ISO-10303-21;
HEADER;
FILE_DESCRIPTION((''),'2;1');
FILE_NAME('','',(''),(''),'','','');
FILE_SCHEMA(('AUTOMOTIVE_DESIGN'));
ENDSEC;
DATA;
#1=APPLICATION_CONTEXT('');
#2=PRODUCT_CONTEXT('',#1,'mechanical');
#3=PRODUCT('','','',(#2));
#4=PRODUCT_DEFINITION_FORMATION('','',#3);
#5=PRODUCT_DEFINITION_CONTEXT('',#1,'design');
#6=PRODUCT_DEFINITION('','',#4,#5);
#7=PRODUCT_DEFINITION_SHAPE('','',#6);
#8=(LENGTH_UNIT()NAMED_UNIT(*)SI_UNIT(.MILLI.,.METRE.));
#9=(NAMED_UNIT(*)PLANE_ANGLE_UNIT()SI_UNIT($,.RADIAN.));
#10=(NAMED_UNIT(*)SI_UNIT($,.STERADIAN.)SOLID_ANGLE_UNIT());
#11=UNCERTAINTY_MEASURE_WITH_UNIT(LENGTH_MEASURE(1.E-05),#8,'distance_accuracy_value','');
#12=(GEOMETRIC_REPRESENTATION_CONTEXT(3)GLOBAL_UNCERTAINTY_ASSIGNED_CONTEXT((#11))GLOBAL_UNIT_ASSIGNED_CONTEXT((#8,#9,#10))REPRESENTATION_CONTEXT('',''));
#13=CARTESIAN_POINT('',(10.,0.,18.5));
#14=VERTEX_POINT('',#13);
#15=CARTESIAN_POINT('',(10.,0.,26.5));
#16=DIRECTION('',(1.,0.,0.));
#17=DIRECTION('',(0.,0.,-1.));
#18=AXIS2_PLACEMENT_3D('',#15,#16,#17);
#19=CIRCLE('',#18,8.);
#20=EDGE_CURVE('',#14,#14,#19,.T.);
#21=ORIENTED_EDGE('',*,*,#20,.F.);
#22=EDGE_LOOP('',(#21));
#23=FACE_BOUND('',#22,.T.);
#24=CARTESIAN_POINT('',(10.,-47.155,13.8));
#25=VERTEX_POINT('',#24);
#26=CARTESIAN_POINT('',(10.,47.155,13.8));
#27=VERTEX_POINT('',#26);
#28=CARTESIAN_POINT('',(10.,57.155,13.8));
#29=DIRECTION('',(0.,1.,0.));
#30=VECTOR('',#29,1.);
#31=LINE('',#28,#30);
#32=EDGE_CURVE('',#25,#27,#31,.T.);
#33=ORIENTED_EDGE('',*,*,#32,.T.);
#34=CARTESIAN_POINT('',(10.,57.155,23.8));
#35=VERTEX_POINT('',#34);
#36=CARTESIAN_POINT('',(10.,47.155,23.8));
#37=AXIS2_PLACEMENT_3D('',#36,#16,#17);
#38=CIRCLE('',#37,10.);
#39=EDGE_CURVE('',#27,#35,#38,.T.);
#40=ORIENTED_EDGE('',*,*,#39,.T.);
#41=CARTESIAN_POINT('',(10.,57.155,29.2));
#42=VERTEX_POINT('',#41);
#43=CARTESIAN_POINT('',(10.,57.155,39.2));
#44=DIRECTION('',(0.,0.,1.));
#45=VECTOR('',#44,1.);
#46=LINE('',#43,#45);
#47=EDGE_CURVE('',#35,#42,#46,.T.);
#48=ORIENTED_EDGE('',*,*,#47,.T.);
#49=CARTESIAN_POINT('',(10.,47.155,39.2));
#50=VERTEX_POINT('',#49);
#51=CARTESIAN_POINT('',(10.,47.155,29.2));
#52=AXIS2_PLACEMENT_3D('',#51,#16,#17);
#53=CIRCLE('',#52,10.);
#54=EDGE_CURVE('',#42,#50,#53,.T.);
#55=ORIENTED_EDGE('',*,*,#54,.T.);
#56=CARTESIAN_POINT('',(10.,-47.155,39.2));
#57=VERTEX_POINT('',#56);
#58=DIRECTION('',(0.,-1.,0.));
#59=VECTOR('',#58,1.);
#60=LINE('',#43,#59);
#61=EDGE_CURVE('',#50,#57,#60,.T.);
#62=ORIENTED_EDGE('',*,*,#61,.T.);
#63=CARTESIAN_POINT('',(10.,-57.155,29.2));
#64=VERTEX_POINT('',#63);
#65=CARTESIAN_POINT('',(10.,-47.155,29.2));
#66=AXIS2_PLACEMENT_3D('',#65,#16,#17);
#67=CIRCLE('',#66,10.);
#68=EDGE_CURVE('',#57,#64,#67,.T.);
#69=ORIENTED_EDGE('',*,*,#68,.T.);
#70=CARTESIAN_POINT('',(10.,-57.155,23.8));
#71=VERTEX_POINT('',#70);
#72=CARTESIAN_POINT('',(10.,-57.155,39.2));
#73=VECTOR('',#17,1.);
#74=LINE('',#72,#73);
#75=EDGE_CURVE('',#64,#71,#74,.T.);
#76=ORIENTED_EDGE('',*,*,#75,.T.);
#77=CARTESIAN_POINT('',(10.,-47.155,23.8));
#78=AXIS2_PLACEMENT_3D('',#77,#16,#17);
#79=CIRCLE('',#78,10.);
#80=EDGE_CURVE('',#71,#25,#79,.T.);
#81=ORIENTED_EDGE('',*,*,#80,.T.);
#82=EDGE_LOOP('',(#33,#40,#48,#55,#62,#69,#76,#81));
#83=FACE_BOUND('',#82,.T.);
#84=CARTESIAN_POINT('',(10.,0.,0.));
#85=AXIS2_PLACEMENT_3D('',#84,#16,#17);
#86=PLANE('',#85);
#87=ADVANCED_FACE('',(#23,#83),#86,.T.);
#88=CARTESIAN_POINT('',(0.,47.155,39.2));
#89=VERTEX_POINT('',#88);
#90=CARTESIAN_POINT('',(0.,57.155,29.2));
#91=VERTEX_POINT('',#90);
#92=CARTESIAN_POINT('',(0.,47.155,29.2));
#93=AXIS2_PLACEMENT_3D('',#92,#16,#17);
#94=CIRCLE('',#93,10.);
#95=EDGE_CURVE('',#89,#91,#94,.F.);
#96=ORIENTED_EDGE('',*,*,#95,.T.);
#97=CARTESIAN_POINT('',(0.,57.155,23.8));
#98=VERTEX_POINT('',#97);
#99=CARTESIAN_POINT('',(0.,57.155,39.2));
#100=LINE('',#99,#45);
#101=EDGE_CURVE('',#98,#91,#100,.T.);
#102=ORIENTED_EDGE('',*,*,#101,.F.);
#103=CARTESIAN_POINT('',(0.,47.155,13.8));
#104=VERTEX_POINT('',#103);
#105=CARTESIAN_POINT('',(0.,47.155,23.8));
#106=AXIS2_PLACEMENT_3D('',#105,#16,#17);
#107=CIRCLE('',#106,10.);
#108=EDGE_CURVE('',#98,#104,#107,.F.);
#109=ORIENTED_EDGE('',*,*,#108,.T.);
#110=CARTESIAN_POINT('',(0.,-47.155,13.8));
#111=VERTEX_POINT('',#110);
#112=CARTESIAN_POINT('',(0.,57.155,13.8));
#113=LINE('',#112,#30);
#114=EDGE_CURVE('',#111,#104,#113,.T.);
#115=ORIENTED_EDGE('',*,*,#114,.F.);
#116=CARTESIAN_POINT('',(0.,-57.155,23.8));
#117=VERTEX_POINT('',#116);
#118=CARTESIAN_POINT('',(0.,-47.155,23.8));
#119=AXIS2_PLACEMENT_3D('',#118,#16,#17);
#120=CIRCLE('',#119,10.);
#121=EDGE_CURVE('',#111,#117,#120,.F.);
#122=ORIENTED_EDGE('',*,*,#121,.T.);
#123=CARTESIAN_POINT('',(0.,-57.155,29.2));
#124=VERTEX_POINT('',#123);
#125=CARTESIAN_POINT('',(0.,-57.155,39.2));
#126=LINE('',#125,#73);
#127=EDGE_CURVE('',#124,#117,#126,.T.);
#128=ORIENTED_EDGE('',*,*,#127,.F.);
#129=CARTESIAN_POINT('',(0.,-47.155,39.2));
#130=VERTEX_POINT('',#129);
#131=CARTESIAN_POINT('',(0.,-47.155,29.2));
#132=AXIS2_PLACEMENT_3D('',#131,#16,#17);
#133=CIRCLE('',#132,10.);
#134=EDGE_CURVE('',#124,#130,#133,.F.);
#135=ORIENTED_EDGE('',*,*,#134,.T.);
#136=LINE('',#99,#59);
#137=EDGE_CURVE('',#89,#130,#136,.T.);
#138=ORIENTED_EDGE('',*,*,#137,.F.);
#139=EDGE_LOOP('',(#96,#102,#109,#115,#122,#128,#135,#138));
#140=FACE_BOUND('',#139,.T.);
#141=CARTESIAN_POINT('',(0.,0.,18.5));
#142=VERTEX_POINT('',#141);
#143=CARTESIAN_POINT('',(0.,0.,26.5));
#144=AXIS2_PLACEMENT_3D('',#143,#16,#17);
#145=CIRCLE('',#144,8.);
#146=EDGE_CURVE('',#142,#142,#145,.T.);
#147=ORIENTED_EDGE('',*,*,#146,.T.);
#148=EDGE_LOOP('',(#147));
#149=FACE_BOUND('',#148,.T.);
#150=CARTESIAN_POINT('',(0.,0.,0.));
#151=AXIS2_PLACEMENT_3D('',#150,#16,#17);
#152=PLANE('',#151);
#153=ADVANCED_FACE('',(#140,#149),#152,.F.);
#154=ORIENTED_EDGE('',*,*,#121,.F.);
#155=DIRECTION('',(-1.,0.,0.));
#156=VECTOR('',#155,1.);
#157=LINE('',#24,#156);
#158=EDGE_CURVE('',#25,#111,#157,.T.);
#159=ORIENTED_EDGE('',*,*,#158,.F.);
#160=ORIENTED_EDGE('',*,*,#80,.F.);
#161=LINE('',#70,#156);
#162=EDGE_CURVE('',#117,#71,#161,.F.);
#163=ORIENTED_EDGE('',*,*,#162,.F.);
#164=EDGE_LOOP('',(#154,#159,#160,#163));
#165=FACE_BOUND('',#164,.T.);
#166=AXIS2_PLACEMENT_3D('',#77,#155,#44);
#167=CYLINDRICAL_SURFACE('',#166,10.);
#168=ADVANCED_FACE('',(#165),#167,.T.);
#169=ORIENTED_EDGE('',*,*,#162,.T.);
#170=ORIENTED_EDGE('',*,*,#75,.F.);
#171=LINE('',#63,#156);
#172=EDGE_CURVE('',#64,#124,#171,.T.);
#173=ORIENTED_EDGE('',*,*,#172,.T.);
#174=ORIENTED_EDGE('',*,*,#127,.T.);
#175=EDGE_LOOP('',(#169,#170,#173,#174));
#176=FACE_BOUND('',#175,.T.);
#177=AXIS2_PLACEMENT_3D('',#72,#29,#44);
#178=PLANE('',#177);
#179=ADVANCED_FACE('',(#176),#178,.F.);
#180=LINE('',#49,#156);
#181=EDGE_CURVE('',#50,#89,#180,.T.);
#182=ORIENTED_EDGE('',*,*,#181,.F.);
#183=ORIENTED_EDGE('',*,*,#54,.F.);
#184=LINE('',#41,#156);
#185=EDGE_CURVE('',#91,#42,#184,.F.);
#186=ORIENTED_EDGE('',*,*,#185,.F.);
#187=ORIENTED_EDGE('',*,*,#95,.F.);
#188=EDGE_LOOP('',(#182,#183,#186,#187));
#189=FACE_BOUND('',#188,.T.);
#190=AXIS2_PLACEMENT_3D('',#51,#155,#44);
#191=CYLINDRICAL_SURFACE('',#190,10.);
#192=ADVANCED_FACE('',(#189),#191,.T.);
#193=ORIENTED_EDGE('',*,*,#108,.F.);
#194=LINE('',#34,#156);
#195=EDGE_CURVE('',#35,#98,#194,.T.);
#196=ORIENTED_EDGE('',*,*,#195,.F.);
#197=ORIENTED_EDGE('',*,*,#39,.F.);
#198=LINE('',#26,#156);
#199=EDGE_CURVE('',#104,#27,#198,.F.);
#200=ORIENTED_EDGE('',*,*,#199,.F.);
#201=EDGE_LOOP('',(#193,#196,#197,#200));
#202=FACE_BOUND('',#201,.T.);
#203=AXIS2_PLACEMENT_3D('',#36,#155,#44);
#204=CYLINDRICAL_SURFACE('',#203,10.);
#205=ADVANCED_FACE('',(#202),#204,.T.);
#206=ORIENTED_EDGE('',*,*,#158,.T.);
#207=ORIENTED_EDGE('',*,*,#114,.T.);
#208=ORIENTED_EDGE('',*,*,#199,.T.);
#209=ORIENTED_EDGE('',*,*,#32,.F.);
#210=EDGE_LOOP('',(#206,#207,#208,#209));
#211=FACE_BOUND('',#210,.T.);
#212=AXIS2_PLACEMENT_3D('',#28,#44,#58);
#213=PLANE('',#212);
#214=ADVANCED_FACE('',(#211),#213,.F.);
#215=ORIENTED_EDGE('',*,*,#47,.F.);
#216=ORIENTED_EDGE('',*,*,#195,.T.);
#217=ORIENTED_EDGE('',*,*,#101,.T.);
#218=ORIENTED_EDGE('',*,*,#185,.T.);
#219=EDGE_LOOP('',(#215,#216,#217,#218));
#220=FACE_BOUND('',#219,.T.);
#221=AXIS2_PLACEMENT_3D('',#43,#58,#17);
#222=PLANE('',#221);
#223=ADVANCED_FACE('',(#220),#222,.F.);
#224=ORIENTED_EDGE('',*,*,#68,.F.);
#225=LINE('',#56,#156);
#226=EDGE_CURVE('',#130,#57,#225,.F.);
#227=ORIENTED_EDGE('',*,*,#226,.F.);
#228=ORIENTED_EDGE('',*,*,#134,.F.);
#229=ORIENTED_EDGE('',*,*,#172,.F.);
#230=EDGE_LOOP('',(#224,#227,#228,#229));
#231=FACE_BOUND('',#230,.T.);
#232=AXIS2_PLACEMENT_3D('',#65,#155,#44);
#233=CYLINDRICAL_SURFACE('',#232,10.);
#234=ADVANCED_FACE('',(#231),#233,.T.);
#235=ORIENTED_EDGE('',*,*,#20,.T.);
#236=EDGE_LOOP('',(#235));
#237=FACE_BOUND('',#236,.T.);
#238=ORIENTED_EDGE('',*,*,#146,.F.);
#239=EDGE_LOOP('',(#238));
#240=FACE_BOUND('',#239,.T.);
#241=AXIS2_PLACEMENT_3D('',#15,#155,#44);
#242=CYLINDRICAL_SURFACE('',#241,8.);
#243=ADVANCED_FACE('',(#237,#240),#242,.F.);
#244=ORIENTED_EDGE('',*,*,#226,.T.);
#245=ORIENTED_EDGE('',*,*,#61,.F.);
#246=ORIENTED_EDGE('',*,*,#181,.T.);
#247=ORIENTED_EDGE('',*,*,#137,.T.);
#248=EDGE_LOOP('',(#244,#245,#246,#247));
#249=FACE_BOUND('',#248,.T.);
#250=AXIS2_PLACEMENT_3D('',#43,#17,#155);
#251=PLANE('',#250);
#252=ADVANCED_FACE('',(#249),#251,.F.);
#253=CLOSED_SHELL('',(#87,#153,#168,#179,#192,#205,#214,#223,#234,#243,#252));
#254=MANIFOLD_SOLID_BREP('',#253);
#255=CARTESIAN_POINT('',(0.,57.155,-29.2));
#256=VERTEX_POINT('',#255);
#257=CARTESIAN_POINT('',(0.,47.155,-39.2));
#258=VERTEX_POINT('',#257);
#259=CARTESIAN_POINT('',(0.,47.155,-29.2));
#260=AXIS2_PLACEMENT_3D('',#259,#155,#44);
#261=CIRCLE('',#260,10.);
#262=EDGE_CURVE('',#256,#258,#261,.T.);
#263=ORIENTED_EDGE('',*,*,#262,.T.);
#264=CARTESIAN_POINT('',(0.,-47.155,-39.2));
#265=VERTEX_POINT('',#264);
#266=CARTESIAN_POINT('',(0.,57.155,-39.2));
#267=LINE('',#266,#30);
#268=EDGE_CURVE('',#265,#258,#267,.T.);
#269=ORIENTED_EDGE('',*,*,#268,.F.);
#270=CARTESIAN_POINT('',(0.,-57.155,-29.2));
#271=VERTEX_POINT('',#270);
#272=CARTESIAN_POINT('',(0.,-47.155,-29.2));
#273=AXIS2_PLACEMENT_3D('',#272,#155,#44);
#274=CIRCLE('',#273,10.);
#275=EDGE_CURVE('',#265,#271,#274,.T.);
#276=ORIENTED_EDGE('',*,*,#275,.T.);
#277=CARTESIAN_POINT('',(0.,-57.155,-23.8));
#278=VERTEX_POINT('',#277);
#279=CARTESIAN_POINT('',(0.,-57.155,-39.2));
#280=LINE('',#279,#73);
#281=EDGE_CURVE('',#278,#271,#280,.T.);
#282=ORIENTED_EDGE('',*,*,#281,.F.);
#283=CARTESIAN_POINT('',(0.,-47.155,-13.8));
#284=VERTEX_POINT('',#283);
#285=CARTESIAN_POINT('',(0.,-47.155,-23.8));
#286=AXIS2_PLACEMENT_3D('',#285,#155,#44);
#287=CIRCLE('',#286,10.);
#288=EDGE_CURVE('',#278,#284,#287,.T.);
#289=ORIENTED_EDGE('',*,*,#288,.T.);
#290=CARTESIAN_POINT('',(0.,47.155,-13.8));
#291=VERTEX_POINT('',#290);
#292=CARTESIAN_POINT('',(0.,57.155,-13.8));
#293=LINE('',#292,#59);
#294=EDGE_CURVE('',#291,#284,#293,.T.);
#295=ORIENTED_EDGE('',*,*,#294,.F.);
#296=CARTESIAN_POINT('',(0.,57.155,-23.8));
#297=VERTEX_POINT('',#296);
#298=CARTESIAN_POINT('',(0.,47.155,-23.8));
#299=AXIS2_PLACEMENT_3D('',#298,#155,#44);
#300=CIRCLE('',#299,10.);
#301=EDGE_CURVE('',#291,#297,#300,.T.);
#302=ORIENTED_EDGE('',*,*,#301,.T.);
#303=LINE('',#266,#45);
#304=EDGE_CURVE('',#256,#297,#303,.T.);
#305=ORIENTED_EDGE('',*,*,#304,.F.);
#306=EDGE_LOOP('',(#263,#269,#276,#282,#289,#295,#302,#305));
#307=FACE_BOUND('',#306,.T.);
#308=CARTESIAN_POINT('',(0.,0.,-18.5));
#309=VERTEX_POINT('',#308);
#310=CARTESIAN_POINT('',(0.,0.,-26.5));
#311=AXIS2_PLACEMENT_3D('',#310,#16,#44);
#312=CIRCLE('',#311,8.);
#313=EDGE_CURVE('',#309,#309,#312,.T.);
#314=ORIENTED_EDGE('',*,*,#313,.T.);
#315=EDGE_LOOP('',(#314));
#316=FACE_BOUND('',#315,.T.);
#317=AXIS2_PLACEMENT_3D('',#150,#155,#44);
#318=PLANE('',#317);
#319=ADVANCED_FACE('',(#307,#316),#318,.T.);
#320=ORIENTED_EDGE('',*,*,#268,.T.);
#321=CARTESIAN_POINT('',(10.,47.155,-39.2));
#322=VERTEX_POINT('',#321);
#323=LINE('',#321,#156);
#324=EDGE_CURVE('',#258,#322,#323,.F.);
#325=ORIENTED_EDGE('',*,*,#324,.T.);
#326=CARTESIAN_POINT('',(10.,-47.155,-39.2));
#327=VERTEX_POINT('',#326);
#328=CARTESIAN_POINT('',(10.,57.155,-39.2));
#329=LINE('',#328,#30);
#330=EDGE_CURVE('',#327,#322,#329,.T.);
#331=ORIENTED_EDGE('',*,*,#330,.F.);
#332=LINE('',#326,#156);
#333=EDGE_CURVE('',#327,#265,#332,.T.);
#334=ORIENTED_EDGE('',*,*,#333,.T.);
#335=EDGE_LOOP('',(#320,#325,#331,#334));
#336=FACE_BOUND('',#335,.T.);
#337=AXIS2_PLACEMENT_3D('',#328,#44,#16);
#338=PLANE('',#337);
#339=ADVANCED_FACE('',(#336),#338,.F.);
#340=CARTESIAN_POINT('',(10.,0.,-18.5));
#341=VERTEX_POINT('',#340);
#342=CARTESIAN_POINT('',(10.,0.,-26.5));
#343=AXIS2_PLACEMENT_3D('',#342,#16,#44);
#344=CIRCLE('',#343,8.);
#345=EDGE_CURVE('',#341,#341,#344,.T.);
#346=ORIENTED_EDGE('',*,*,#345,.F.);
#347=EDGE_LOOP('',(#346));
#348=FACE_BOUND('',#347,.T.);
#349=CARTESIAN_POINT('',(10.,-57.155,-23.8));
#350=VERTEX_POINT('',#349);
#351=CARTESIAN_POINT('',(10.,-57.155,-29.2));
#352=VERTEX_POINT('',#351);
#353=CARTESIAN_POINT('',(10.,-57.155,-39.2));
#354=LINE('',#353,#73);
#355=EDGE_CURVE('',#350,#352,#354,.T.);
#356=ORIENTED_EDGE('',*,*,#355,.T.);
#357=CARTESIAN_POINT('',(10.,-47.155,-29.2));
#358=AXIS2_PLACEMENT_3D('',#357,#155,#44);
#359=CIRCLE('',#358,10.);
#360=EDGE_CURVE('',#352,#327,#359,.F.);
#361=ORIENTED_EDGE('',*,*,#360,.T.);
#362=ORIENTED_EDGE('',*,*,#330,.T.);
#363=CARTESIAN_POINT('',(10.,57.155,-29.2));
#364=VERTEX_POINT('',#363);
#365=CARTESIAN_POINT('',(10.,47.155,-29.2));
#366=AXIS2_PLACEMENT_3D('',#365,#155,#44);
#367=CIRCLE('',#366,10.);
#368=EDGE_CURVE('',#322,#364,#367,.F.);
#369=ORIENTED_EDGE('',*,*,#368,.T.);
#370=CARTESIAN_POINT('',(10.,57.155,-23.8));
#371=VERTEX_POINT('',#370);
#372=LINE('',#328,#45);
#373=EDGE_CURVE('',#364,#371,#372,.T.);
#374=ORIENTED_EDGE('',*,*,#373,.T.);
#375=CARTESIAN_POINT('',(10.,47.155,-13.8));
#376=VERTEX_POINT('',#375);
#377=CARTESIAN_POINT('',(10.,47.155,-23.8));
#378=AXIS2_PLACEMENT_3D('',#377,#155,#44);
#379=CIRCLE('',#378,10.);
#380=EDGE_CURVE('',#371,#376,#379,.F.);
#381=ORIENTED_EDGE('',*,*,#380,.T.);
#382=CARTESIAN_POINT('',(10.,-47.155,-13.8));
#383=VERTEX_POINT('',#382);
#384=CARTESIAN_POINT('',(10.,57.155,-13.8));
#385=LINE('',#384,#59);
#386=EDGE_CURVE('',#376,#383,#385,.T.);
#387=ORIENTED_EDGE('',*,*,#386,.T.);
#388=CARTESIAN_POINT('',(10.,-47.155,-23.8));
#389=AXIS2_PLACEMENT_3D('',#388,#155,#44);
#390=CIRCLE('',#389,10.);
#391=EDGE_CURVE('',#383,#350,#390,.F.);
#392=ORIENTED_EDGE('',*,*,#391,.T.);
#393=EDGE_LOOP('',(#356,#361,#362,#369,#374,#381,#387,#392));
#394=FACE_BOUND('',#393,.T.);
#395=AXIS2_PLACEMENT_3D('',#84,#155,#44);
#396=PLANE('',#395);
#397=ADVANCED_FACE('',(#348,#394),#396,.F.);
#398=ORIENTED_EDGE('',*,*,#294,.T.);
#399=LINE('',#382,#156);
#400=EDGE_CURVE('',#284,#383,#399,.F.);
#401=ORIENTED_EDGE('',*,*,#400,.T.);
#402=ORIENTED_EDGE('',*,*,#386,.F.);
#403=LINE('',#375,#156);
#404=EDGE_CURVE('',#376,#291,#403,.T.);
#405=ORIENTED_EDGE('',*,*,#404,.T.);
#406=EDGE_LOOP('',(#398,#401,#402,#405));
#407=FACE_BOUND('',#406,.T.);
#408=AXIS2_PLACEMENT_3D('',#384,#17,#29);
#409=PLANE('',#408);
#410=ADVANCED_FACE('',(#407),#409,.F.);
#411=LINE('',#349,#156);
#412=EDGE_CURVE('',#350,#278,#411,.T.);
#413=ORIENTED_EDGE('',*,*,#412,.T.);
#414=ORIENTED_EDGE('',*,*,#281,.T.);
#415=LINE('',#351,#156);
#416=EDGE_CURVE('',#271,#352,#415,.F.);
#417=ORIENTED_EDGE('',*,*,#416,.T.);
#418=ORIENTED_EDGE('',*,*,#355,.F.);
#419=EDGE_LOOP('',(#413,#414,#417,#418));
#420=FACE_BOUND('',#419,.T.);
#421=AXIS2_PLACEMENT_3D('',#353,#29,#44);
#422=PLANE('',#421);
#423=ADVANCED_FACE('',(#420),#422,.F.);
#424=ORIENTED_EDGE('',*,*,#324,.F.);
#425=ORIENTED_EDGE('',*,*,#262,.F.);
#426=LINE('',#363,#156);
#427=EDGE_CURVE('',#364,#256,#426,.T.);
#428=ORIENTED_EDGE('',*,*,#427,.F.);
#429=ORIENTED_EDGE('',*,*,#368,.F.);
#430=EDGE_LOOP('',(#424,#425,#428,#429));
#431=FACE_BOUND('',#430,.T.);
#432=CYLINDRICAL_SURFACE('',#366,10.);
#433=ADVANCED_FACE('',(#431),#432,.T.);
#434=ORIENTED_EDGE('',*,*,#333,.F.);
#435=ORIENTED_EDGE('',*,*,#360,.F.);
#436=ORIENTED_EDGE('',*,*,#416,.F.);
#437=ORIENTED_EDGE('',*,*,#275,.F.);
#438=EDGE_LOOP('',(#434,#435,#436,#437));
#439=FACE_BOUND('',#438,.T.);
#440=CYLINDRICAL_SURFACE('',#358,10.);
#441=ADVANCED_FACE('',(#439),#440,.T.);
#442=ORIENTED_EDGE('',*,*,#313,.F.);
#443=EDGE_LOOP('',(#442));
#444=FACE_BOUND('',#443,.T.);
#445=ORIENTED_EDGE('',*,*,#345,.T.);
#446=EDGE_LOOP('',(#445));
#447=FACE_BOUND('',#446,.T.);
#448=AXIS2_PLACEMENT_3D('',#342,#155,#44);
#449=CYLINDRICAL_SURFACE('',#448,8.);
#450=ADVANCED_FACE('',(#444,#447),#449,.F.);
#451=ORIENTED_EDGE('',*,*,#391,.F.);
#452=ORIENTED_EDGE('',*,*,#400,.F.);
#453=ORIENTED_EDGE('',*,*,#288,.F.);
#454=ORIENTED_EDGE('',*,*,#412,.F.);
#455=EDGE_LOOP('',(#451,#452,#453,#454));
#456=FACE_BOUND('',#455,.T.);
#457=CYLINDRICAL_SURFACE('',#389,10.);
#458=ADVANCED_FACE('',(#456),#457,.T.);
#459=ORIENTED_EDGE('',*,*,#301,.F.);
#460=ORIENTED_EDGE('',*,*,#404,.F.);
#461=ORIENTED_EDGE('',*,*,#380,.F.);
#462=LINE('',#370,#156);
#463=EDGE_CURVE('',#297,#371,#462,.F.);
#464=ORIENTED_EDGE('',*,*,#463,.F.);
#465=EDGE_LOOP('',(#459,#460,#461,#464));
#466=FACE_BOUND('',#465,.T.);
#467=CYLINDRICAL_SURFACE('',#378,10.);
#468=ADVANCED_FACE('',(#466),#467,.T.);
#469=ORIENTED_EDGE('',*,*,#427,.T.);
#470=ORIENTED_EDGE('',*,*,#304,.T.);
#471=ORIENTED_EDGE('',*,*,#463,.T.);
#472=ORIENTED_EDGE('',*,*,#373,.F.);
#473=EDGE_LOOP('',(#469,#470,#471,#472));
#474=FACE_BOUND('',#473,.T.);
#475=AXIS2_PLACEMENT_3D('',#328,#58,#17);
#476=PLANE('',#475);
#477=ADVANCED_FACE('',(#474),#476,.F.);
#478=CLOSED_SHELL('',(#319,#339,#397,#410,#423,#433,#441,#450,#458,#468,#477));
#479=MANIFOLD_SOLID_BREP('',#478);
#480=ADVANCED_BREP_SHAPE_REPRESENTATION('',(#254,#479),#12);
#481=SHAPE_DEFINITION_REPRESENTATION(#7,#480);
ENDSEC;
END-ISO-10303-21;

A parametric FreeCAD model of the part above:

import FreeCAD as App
import Part
import Sketcher

V = App.Vector
Q = App.Units.Quantity


def edges_at(feature, points):
    """Names of the edges that pass closest to the given points."""
    edges = feature.Shape.Edges
    near = lambda p: min(range(len(edges)), key=lambda i: edges[i].distToShape(Part.Vertex(*p))[0])
    return sorted({f"Edge{near(p) + 1}" for p in points})

doc = App.newDocument("Part")
body = doc.addObject("PartDesign::Body", "Body")

# Sketch on YZ plane
sketch1 = body.newObject("Sketcher::SketchObject", "Sketch")
sketch1.AttachmentSupport = (doc.getObject("YZ_Plane"), [""])
sketch1.MapMode = "FlatFace"
sketch1.addGeometry([
    Part.LineSegment(V(57.155, 39.2, 0), V(-57.155, 39.2, 0)),  # 0
    Part.LineSegment(V(-57.155, 39.2, 0), V(-57.155, 13.8, 0)),  # 1
    Part.LineSegment(V(-57.155, 13.8, 0), V(57.155, 13.8, 0)),  # 2
    Part.LineSegment(V(57.155, 13.8, 0), V(57.155, 39.2, 0)),  # 3
    Part.Circle(V(0, 26.5, 0), V(0, 0, 1), 8),  # 4
], False)
sketch1.addConstraint([
    Sketcher.Constraint("Coincident", 0, 2, 1, 1),
    Sketcher.Constraint("Coincident", 1, 2, 2, 1),
    Sketcher.Constraint("Coincident", 2, 2, 3, 1),
    Sketcher.Constraint("Coincident", 3, 2, 0, 1),
    Sketcher.Constraint("Horizontal", 0),
    Sketcher.Constraint("Vertical", 1),
    Sketcher.Constraint("Horizontal", 2),
    Sketcher.Constraint("Vertical", 3),
    Sketcher.Constraint("PointOnObject", 4, 3, -2),
    Sketcher.Constraint("Diameter", 4, Q("16 mm")),
    Sketcher.Constraint("DistanceY", 1, 2, 1, 1, Q("25.4 mm")),
    Sketcher.Constraint("DistanceX", 0, 2, 0, 1, Q("114.31 mm")),
    Sketcher.Constraint("DistanceY", -1, 1, 4, 3, Q("26.5 mm")),
    Sketcher.Constraint("DistanceY", -1, 1, 0, 2, Q("39.2 mm")),
    Sketcher.Constraint("DistanceX", 0, 2, -1, 1, Q("57.155 mm")),
])
pad1 = body.newObject("PartDesign::Pad", "Pad")
pad1.Profile = sketch1
pad1.Length = 10
doc.recompute()

fillet = body.newObject("PartDesign::Fillet", "Fillet")
fillet.Base = (pad1, edges_at(pad1, [
    (5, -57.155, 13.8),
    (5, -57.155, 39.2),
    (5, 57.155, 39.2),
    (5, 57.155, 13.8),
]))
fillet.Radius = 10
body2 = doc.addObject("PartDesign::Body", "Body001")

# Sketch on YZ plane
sketch2 = body2.newObject("Sketcher::SketchObject", "Sketch001")
sketch2.AttachmentSupport = (doc.getObject("YZ_Plane001"), [""])
sketch2.MapMode = "FlatFace"
sketch2.addGeometry([
    Part.LineSegment(V(57.155, -13.8, 0), V(-57.155, -13.8, 0)),  # 0
    Part.LineSegment(V(-57.155, -13.8, 0), V(-57.155, -39.2, 0)),  # 1
    Part.LineSegment(V(-57.155, -39.2, 0), V(57.155, -39.2, 0)),  # 2
    Part.LineSegment(V(57.155, -39.2, 0), V(57.155, -13.8, 0)),  # 3
    Part.Circle(V(0, -26.5, 0), V(0, 0, 1), 8),  # 4
], False)
sketch2.addConstraint([
    Sketcher.Constraint("Coincident", 0, 2, 1, 1),
    Sketcher.Constraint("Coincident", 1, 2, 2, 1),
    Sketcher.Constraint("Coincident", 2, 2, 3, 1),
    Sketcher.Constraint("Coincident", 3, 2, 0, 1),
    Sketcher.Constraint("Horizontal", 0),
    Sketcher.Constraint("Vertical", 1),
    Sketcher.Constraint("Horizontal", 2),
    Sketcher.Constraint("Vertical", 3),
    Sketcher.Constraint("PointOnObject", 4, 3, -2),
    Sketcher.Constraint("Diameter", 4, Q("16 mm")),
    Sketcher.Constraint("DistanceY", 1, 2, 1, 1, Q("25.4 mm")),
    Sketcher.Constraint("DistanceX", 0, 2, 0, 1, Q("114.31 mm")),
    Sketcher.Constraint("DistanceY", 4, 3, -1, 1, Q("26.5 mm")),
    Sketcher.Constraint("DistanceY", 0, 2, -1, 1, Q("13.8 mm")),
    Sketcher.Constraint("DistanceX", 0, 2, -1, 1, Q("57.155 mm")),
])
pad2 = body2.newObject("PartDesign::Pad", "Pad001")
pad2.Profile = sketch2
pad2.Length = 10
doc.recompute()

fillet2 = body2.newObject("PartDesign::Fillet", "Fillet001")
fillet2.Base = (pad2, edges_at(pad2, [
    (5, -57.155, -39.2),
    (5, -57.155, -13.8),
    (5, 57.155, -13.8),
    (5, 57.155, -39.2),
]))
fillet2.Radius = 10

doc.recompute()
